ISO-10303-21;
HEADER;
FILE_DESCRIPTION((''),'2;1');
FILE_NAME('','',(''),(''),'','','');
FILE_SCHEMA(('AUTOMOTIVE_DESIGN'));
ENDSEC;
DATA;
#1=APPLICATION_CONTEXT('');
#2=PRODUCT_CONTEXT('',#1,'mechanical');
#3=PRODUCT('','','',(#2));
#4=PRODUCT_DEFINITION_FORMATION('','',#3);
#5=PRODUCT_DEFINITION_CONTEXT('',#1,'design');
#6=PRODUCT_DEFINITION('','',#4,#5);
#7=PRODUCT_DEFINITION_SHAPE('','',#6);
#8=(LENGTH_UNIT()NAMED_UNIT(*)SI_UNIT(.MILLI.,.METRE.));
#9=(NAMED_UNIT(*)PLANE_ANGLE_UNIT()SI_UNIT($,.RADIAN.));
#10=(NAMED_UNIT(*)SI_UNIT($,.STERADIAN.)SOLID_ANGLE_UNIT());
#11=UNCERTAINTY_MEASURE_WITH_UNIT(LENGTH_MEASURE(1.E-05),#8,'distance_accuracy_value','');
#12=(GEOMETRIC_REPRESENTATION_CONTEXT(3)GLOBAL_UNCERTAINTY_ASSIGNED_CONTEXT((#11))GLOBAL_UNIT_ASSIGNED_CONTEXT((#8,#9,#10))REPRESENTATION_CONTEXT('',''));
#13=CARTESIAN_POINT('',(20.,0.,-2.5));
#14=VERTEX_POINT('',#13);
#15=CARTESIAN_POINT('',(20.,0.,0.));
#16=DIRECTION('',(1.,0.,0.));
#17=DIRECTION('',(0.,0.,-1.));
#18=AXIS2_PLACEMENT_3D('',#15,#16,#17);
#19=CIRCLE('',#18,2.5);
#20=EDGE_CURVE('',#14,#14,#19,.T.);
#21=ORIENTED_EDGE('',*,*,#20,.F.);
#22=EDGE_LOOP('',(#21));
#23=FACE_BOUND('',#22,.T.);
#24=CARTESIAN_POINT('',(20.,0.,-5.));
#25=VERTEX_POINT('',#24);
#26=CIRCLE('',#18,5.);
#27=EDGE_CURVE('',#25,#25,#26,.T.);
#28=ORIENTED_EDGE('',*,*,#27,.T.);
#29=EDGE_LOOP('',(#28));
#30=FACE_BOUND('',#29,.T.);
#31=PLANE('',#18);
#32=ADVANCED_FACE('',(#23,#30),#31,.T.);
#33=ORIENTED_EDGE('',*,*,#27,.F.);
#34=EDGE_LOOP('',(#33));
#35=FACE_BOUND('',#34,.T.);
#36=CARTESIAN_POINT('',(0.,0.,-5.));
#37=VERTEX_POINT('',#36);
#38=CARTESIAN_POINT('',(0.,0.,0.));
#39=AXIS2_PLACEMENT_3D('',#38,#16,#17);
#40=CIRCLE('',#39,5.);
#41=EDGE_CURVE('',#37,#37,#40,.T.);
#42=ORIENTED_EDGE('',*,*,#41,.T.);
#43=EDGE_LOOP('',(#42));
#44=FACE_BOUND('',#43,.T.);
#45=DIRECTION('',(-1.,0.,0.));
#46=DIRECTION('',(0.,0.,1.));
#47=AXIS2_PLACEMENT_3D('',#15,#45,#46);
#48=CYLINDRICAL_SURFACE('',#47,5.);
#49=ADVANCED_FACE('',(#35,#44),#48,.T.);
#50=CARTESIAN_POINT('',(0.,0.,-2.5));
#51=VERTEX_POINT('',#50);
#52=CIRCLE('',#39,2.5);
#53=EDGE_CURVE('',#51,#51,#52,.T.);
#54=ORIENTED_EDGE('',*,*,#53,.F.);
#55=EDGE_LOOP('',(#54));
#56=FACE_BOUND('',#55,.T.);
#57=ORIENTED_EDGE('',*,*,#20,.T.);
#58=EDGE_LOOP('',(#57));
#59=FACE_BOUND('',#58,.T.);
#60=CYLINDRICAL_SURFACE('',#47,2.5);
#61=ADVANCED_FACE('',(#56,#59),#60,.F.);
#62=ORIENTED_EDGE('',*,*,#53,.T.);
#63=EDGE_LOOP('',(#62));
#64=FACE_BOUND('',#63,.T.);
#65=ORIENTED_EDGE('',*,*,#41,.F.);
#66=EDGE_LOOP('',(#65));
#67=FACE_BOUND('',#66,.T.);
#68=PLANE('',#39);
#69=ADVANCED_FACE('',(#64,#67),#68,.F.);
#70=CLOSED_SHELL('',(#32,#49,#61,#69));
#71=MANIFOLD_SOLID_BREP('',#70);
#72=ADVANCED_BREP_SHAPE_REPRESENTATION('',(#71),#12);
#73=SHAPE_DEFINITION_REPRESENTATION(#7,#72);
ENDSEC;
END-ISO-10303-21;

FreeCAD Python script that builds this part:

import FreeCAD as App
import Part
import Sketcher

V = App.Vector
Q = App.Units.Quantity

doc = App.newDocument("Part")
body = doc.addObject("PartDesign::Body", "Body")

# Sketch on YZ plane
sketch1 = body.newObject("Sketcher::SketchObject", "Sketch")
sketch1.AttachmentSupport = (doc.getObject("YZ_Plane"), [""])
sketch1.MapMode = "FlatFace"
sketch1.addGeometry(Part.Circle(V(0, 0, 0), V(0, 0, 1), 5), False)
sketch1.addGeometry(Part.Circle(V(0, 0, 0), V(0, 0, 1), 2.5), False)
sketch1.addConstraint(Sketcher.Constraint("Coincident", 0, 3, -1, 1))
sketch1.addConstraint(Sketcher.Constraint("Coincident", 1, 3, -1, 1))
sketch1.addConstraint(Sketcher.Constraint("Diameter", 0, Q("10 mm")))
sketch1.addConstraint(Sketcher.Constraint("Diameter", 1, Q("5 mm")))
pad1 = body.newObject("PartDesign::Pad", "Pad")
pad1.Profile = sketch1
pad1.Length = 20

doc.recompute()
